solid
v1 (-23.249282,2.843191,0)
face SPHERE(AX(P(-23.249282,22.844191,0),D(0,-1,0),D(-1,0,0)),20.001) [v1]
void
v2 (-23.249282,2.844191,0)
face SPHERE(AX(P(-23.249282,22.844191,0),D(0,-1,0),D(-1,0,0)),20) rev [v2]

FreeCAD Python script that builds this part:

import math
import FreeCAD as App
import Part
import Sketcher
Q = App.Units.Quantity

doc = App.newDocument("Part")
body = doc.addObject("PartDesign::Body", "Body")

# Sketch on XY plane
sketch1 = body.newObject("Sketcher::SketchObject", "Sketch")
sketch1.AttachmentSupport = (doc.getObject("XY_Plane"), [""])
sketch1.MapMode = "FlatFace"
sketch1.addGeometry([
    Part.ArcOfCircle(Part.Circle(App.Vector(-23.2493, 22.8442, 0), App.Vector(0, 0, 1), 20), math.radians(-90), math.radians(90)),
    Part.LineSegment(App.Vector(-23.2493, 2.8442, 0), App.Vector(-23.2493, 2.8432, 0)),
    Part.ArcOfCircle(Part.Circle(App.Vector(-23.2493, 22.8442, 0), App.Vector(0, 0, 1), 20.001), math.radians(-90), math.radians(90)),
    Part.LineSegment(App.Vector(-23.2493, 42.8452, 0), App.Vector(-23.2493, 42.8442, 0)),
], False)
sketch1.addGeometry(Part.LineSegment(App.Vector(-23.2493, 2.8432, 0), App.Vector(-23.2493, 42.8452, 0)), True)  # axis
sketch1.addConstraint([
    Sketcher.Constraint("Coincident", 0, 1, 1, 1),
    Sketcher.Constraint("Coincident", 1, 2, 2, 1),
    Sketcher.Constraint("Coincident", 2, 2, 3, 1),
    Sketcher.Constraint("Coincident", 3, 2, 0, 2),
    Sketcher.Constraint("Vertical", 1),
    Sketcher.Constraint("Vertical", 3),
    Sketcher.Constraint("Vertical", 4),
    Sketcher.Constraint("Coincident", 2, 3, 0, 3),
    Sketcher.Constraint("Coincident", 4, 1, 1, 2),
    Sketcher.Constraint("Coincident", 4, 2, 2, 2),
    Sketcher.Constraint("Vertical", 2, 3, 0, 1),
    Sketcher.Constraint("Radius", 0, Q("20 mm")),
    Sketcher.Constraint("Radius", 2, Q("20.001 mm")),
    Sketcher.Constraint("DistanceX", 0, 3, -1, 1, Q("23.249282 mm")),
    Sketcher.Constraint("DistanceY", -1, 1, 0, 3, Q("22.844191 mm")),
])
revolution = body.newObject("PartDesign::Revolution", "Revolution")
revolution.Profile = sketch1
revolution.ReferenceAxis = (sketch1, ["Axis0"])
revolution.Angle = 360

doc.recompute()
